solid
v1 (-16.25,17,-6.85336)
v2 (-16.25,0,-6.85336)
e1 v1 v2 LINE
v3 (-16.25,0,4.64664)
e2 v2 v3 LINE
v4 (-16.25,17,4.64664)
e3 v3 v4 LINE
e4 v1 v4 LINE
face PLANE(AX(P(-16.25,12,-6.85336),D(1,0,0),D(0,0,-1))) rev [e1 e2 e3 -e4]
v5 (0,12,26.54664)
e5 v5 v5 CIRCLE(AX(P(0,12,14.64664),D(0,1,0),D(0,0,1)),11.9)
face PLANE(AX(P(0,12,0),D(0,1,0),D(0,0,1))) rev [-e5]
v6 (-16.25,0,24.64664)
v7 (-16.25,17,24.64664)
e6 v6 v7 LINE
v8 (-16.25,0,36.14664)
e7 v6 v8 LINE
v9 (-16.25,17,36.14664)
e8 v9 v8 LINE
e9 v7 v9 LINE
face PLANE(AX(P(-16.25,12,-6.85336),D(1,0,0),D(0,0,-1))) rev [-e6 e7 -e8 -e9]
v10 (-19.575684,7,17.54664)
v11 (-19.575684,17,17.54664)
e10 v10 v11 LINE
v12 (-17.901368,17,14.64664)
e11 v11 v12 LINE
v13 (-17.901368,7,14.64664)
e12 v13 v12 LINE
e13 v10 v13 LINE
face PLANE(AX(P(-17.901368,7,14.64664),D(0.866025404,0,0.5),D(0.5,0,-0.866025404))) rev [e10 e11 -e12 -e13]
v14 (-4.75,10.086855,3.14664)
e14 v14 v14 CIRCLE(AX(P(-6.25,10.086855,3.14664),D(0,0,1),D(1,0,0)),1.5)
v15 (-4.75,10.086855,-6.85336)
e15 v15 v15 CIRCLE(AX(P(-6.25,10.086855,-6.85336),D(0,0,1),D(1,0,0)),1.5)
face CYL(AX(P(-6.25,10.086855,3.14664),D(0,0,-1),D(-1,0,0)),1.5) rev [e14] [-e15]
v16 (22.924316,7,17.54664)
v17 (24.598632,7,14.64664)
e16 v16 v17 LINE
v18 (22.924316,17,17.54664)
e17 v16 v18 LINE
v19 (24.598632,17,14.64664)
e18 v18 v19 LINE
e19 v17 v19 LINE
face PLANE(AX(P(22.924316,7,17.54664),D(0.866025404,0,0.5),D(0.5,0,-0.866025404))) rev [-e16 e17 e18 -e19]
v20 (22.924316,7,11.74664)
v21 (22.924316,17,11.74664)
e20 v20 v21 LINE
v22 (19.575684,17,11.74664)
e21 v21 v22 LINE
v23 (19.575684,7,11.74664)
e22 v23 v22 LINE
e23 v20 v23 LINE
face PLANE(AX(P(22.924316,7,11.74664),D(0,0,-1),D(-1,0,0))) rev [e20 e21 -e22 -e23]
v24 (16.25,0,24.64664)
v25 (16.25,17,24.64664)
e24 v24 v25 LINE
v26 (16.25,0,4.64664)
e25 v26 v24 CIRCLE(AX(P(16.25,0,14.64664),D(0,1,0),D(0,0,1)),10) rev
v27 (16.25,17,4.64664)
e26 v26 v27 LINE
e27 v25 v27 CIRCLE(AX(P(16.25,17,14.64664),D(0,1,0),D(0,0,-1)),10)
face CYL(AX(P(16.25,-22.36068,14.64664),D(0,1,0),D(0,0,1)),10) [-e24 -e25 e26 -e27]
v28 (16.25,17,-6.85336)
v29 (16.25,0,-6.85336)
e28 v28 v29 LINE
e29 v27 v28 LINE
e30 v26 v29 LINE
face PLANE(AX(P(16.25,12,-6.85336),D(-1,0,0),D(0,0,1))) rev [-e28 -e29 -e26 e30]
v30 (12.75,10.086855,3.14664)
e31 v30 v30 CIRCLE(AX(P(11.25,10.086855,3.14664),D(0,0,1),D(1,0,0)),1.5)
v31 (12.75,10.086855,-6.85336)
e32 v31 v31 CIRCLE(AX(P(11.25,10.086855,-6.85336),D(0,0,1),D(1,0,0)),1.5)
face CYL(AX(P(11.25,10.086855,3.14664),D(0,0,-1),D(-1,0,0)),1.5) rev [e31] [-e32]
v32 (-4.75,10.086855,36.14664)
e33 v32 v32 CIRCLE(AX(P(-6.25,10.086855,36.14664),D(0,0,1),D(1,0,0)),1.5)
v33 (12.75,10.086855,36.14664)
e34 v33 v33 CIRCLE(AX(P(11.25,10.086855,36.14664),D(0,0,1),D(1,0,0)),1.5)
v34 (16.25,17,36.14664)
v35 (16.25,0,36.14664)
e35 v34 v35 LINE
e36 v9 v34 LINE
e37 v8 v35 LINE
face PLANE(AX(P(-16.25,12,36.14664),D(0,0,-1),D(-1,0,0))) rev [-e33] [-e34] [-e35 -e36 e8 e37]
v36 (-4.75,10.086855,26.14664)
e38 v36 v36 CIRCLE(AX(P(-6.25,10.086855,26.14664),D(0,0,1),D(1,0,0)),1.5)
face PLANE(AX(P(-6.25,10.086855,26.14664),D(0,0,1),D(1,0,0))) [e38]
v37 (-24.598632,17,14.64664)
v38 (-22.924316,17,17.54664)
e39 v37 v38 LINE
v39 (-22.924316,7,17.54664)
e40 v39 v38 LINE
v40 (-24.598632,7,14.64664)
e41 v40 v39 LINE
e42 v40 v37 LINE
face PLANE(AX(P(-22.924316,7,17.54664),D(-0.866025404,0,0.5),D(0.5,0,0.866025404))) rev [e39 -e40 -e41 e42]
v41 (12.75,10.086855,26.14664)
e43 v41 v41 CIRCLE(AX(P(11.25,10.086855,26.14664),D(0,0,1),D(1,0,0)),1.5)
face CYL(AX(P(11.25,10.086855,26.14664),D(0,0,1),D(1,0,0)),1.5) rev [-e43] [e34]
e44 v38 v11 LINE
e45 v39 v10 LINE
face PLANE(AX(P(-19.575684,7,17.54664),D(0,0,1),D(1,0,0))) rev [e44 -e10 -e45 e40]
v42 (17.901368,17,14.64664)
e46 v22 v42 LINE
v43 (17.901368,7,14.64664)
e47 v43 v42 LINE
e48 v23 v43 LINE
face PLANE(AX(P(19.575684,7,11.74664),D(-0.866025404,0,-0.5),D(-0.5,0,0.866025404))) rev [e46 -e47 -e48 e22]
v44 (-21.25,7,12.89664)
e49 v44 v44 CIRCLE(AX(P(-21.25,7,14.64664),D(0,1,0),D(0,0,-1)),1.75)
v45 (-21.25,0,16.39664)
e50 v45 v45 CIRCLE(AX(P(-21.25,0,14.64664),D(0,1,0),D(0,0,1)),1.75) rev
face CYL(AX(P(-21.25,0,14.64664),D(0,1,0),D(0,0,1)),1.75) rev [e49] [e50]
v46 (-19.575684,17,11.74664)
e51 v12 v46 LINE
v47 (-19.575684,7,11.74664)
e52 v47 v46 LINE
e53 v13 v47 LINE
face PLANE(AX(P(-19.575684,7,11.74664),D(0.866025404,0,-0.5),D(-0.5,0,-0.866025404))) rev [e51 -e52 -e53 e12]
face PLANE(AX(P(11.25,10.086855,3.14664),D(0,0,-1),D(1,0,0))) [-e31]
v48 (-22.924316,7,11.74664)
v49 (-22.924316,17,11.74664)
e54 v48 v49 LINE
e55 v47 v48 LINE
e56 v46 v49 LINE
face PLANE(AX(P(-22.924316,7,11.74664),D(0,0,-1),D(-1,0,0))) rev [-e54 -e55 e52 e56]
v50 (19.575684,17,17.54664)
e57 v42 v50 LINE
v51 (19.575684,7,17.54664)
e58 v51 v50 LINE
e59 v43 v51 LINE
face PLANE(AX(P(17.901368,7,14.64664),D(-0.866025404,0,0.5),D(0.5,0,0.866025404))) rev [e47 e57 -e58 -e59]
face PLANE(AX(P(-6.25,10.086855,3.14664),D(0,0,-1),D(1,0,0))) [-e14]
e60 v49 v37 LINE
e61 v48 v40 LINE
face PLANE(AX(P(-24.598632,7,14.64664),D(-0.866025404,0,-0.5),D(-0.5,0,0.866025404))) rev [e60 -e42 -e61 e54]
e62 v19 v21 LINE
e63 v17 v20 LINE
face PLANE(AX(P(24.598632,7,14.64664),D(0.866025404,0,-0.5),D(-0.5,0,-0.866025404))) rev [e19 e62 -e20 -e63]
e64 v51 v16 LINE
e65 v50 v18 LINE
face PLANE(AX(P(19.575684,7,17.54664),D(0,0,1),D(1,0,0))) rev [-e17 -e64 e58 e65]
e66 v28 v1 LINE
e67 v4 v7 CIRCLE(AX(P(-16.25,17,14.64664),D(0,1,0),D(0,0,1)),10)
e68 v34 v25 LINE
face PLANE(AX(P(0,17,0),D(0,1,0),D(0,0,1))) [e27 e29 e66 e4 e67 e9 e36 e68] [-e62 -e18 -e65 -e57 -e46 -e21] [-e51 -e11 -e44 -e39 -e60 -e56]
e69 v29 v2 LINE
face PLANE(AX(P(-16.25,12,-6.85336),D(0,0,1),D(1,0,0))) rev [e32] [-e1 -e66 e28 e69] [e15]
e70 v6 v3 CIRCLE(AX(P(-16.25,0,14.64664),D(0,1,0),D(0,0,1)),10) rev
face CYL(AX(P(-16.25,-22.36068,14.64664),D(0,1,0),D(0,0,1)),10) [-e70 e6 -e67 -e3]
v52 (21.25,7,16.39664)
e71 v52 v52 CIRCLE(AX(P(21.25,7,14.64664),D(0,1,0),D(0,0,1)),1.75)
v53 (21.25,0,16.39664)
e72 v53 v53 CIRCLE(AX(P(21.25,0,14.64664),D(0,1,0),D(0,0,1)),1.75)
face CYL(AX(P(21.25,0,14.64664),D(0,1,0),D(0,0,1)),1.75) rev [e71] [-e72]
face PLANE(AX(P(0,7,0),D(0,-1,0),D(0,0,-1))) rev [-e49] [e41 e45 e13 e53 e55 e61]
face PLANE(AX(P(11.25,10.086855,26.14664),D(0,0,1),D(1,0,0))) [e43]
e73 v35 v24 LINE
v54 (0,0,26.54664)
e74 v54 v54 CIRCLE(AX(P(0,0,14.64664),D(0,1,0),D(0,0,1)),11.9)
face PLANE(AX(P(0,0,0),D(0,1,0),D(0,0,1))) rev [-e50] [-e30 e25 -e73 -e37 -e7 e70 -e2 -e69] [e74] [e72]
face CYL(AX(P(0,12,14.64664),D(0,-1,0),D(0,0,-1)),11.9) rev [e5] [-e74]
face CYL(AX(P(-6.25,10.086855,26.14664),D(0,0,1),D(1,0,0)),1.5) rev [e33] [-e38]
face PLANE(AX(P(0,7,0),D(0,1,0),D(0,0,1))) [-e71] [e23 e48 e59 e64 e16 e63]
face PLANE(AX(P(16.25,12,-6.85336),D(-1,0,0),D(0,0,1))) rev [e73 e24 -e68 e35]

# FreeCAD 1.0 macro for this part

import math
import FreeCAD as App
import Part
import Sketcher

V = App.Vector
Q = App.Units.Quantity


def add_polygon(sketch, points):
    """Adds a closed chain of lines whose ends are joined by coincident constraints."""
    first, n = sketch.GeometryCount, len(points)
    for a, b in zip(points, points[1:] + points[:1]):
        sketch.addGeometry(Part.LineSegment(App.Vector(*a, 0), App.Vector(*b, 0)), False)
    for i in range(n):
        sketch.addConstraint(Sketcher.Constraint("Coincident", first + i, 2, first + (i + 1) % n, 1))

doc = App.newDocument("Part")
params = doc.addObject("Spreadsheet::Sheet", "Params")
for row, (alias, value) in enumerate([
    ("sketch1_diameter", "23.8 mm"),
    ("sketch1_height", "43 mm"),
    ("sketch1_width", "32.5 mm"),
    ("pad1_length", "12 mm"),
    ("sketch2_height", "43 mm"),
    ("sketch2_width", "32.5 mm"),
    ("pad2_length", "5 mm"),
    ("sketch3_diameter", "3 mm"),
    ("pocket1_length", "10 mm"),
    ("sketch4_radius", "10 mm"),
    ("pad3_length", "17 mm"),
    ("sketch5_diameter", "3.5 mm"),
    ("sketch6_diameter", "3.5 mm"),
    ("pocket3_length", "10 mm"),
], start=1):
    params.set(f"A{row}", alias)
    params.set(f"B{row}", "=" + value)
    params.setAlias(f"B{row}", alias)

body = doc.addObject("PartDesign::Body", "Body")

# Sketch on XZ plane
sketch1 = body.newObject("Sketcher::SketchObject", "Sketch")
sketch1.AttachmentSupport = (doc.getObject("XZ_Plane"), [""])
sketch1.MapMode = "FlatFace"
add_polygon(sketch1, [(-16, -7), (-16, 36), (16, 36), (16, -7)])  # lines 0-3
sketch1.addGeometry(Part.Circle(V(0, 15, 0), V(0, 0, 1), 12), False)  # 4
sketch1.addConstraint(Sketcher.Constraint("Vertical", 0))
sketch1.addConstraint(Sketcher.Constraint("Horizontal", 1))
sketch1.addConstraint(Sketcher.Constraint("Vertical", 2))
sketch1.addConstraint(Sketcher.Constraint("Horizontal", 3))
sketch1.addConstraint(Sketcher.Constraint("PointOnObject", 4, 3, -2))
sketch1.addConstraint(Sketcher.Constraint("Diameter", 4, Q("23.8 mm")))
sketch1.addConstraint(Sketcher.Constraint("DistanceY", 0, 1, 0, 2, Q("43 mm")))
sketch1.addConstraint(Sketcher.Constraint("DistanceX", 1, 1, 1, 2, Q("32.5 mm")))
sketch1.addConstraint(Sketcher.Constraint("DistanceY", 4, 3, 0, 2, Q("21.5 mm")))
sketch1.addConstraint(Sketcher.Constraint("DistanceX", 0, 2, -1, 1, Q("16.25 mm")))
sketch1.addConstraint(Sketcher.Constraint("DistanceY", -1, 1, 4, 3, Q("14.64664 mm")))
sketch1.setExpression("Constraints[9]", "Params.sketch1_diameter")
sketch1.setExpression("Constraints[10]", "Params.sketch1_height")
sketch1.setExpression("Constraints[11]", "Params.sketch1_width")
pad1 = body.newObject("PartDesign::Pad", "Pad")
pad1.Profile = sketch1
pad1.setExpression("Length", "Params.pad1_length")
pad1.Reversed = True

# Sketch on XZ plane
sketch2 = body.newObject("Sketcher::SketchObject", "Sketch001")
sketch2.AttachmentSupport = (doc.getObject("XZ_Plane"), [""])
sketch2.MapMode = "FlatFace"
sketch2.AttachmentOffset = App.Placement(V(0, 0, -12), App.Rotation())
add_polygon(sketch2, [(-16, -7), (-16, 36), (16, 36), (16, -7)])  # lines 0-3
sketch2.addConstraint(Sketcher.Constraint("Vertical", 0))
sketch2.addConstraint(Sketcher.Constraint("Horizontal", 1))
sketch2.addConstraint(Sketcher.Constraint("Vertical", 2))
sketch2.addConstraint(Sketcher.Constraint("Horizontal", 3))
sketch2.addConstraint(Sketcher.Constraint("DistanceY", 0, 1, 0, 2, Q("43 mm")))
sketch2.addConstraint(Sketcher.Constraint("DistanceX", 1, 1, 1, 2, Q("32.5 mm")))
sketch2.addConstraint(Sketcher.Constraint("DistanceX", 0, 2, -1, 1, Q("16.25 mm")))
sketch2.addConstraint(Sketcher.Constraint("DistanceY", -1, 1, 0, 2, Q("36.14664 mm")))
sketch2.setExpression("Constraints[8]", "Params.sketch2_height")
sketch2.setExpression("Constraints[9]", "Params.sketch2_width")
pad2 = body.newObject("PartDesign::Pad", "Pad001")
pad2.Profile = sketch2
pad2.setExpression("Length", "Params.pad2_length")
pad2.Reversed = True

# Sketch on XY plane
sketch3 = body.newObject("Sketcher::SketchObject", "Sketch002")
sketch3.AttachmentSupport = (doc.getObject("XY_Plane"), [""])
sketch3.MapMode = "FlatFace"
sketch3.AttachmentOffset = App.Placement(V(0, 0, 36.14664), App.Rotation())
sketch3.addGeometry(Part.Circle(V(11.2, 10.1, 0), V(0, 0, 1), 1.5), False)
sketch3.addGeometry(Part.Circle(V(-6.2, 10.1, 0), V(0, 0, 1), 1.5), False)
sketch3.addConstraint(Sketcher.Constraint("Equal", 0, 1))
sketch3.addConstraint(Sketcher.Constraint("Horizontal", 0, 3, 1, 3))
sketch3.addConstraint(Sketcher.Constraint("Diameter", 0, Q("3 mm")))
sketch3.addConstraint(Sketcher.Constraint("DistanceX", 1, 3, 0, 3, Q("17.5 mm")))
sketch3.addConstraint(Sketcher.Constraint("DistanceX", -1, 1, 0, 3, Q("11.25 mm")))
sketch3.addConstraint(Sketcher.Constraint("DistanceY", -1, 1, 0, 3, Q("10.086855 mm")))
sketch3.setExpression("Constraints[2]", "Params.sketch3_diameter")
pocket1 = body.newObject("PartDesign::Pocket", "Pocket")
pocket1.Profile = sketch3
pocket1.setExpression("Length", "Params.pocket1_length")
doc.recompute()

datumplane = body.newObject("PartDesign::Plane", "DatumPlane")
datumplane.AttachmentSupport = (doc.getObject("XY_Plane"), [""])
datumplane.MapMode = "FlatFace"
datumplane.AttachmentOffset = App.Placement(V(0, 0, 14.64664), App.Rotation())
mirrored = body.newObject("PartDesign::Mirrored", "Mirrored")
mirrored.Originals = [pocket1]
mirrored.MirrorPlane = (datumplane, [""])
body.Tip = mirrored

# Sketch on XZ plane
sketch4 = body.newObject("Sketcher::SketchObject", "Sketch003")
sketch4.AttachmentSupport = (doc.getObject("XZ_Plane"), [""])
sketch4.MapMode = "FlatFace"
sketch4.AttachmentOffset = App.Placement(V(0, 0, -17), App.Rotation())
sketch4.addGeometry(Part.LineSegment(V(16, 5, 0), V(16, 25, 0)), False)
sketch4.addGeometry(Part.ArcOfCircle(Part.Circle(V(16, 15, 0), V(0, 0, 1), 10), math.radians(-90), math.radians(90)), False)
sketch4.addGeometry(Part.LineSegment(V(-16, 25, 0), V(-16, 5, 0)), False)
sketch4.addGeometry(Part.ArcOfCircle(Part.Circle(V(-16, 15, 0), V(0, 0, 1), 10), math.radians(90), math.radians(270)), False)
sketch4.addConstraint(Sketcher.Constraint("Coincident", 0, 1, 1, 1))
sketch4.addConstraint(Sketcher.Constraint("Coincident", 1, 2, 0, 2))
sketch4.addConstraint(Sketcher.Constraint("Coincident", 2, 1, 3, 1))
sketch4.addConstraint(Sketcher.Constraint("Coincident", 3, 2, 2, 2))
sketch4.addConstraint(Sketcher.Constraint("Vertical", 0))
sketch4.addConstraint(Sketcher.Constraint("Vertical", 2))
sketch4.addConstraint(Sketcher.Constraint("Equal", 1, 3))
sketch4.addConstraint(Sketcher.Constraint("Symmetric", 1, 3, 3, 3, -2))
sketch4.addConstraint(Sketcher.Constraint("Vertical", 1, 3, 0, 1))
sketch4.addConstraint(Sketcher.Constraint("Vertical", 3, 3, 2, 1))
sketch4.addConstraint(Sketcher.Constraint("Radius", 1, Q("10 mm")))
sketch4.addConstraint(Sketcher.Constraint("DistanceX", 3, 3, 1, 3, Q("32.5 mm")))
sketch4.addConstraint(Sketcher.Constraint("DistanceY", -1, 1, 1, 3, Q("14.64664 mm")))
sketch4.setExpression("Constraints[10]", "Params.sketch4_radius")
pad3 = body.newObject("PartDesign::Pad", "Pad002")
pad3.Profile = sketch4
pad3.setExpression("Length", "Params.pad3_length")

# Sketch on XZ plane
sketch5 = body.newObject("Sketcher::SketchObject", "Sketch004")
sketch5.AttachmentSupport = (doc.getObject("XZ_Plane"), [""])
sketch5.MapMode = "FlatFace"
sketch5.AttachmentOffset = App.Placement(V(0, 0, -17), App.Rotation())
sketch5.addGeometry(Part.Circle(V(-21.2, 14.6, 0), V(0, 0, 1), 1.8), False)
sketch5.addGeometry(Part.Circle(V(21.2, 14.6, 0), V(0, 0, 1), 1.8), False)
sketch5.addConstraint(Sketcher.Constraint("Equal", 0, 1))
sketch5.addConstraint(Sketcher.Constraint("Symmetric", 0, 3, 1, 3, -2))
sketch5.addConstraint(Sketcher.Constraint("Diameter", 0, Q("3.5 mm")))
sketch5.addConstraint(Sketcher.Constraint("DistanceX", 0, 3, 1, 3, Q("42.5 mm")))
sketch5.addConstraint(Sketcher.Constraint("DistanceY", -1, 1, 0, 3, Q("14.64664 mm")))
sketch5.setExpression("Constraints[2]", "Params.sketch5_diameter")
pocket2 = body.newObject("PartDesign::Pocket", "Pocket001")
pocket2.Profile = sketch5
pocket2.Type = "ThroughAll"
pocket2.Reversed = True

# Sketch on XZ plane
sketch6 = body.newObject("Sketcher::SketchObject", "Sketch005")
sketch6.AttachmentSupport = (doc.getObject("XZ_Plane"), [""])
sketch6.MapMode = "FlatFace"
sketch6.AttachmentOffset = App.Placement(V(0, 0, -17), App.Rotation())
add_polygon(sketch6, [(22.9, 17.5), (24.6, 14.6), (22.9, 11.7), (19.6, 11.7), (17.9, 14.6), (19.6, 17.5)])  # lines 0-5
sketch6.addGeometry(Part.Circle(V(21.2, 14.6, 0), V(0, 0, 1), 1.8), False)  # 6
add_polygon(sketch6, [(-22.9, 17.5), (-19.6, 17.5), (-17.9, 14.6), (-19.6, 11.7), (-22.9, 11.7), (-24.6, 14.6)])  # lines 7-12
sketch6.addGeometry(Part.Circle(V(-21.2, 14.6, 0), V(0, 0, 1), 1.8), False)  # 13
sketch6.addConstraint(Sketcher.Constraint("Horizontal", 2))
sketch6.addConstraint(Sketcher.Constraint("Horizontal", 5))
sketch6.addConstraint(Sketcher.Constraint("Horizontal", 7))
sketch6.addConstraint(Sketcher.Constraint("Horizontal", 10))
sketch6.addConstraint(Sketcher.Constraint("Equal", 6, 13))
sketch6.addConstraint(Sketcher.Constraint("Symmetric", 6, 3, 13, 3, -2))
sketch6.addConstraint(Sketcher.Constraint("Symmetric", 4, 2, 7, 2, -2))
sketch6.addConstraint(Sketcher.Constraint("Symmetric", 3, 2, 8, 2, -2))
sketch6.addConstraint(Sketcher.Constraint("Symmetric", 2, 2, 9, 2, -2))
sketch6.addConstraint(Sketcher.Constraint("Symmetric", 0, 2, 11, 2, -2))
sketch6.addConstraint(Sketcher.Constraint("Parallel", 0, 3))
sketch6.addConstraint(Sketcher.Constraint("Parallel", 1, 4))
sketch6.addConstraint(Sketcher.Constraint("Parallel", 3, 8))
sketch6.addConstraint(Sketcher.Constraint("Parallel", 8, 11))
sketch6.addConstraint(Sketcher.Constraint("Parallel", 9, 12))
sketch6.addConstraint(Sketcher.Constraint("Horizontal", 13, 3, 0, 2))
sketch6.addConstraint(Sketcher.Constraint("Horizontal", 0, 2, 3, 2))
sketch6.addConstraint(Sketcher.Constraint("Vertical", 2, 2, 4, 2))
sketch6.addConstraint(Sketcher.Constraint("Diameter", 6, Q("3.5 mm")))
sketch6.addConstraint(Sketcher.Constraint("Angle", 0, Q("-60 deg")))
sketch6.addConstraint(Sketcher.Constraint("DistanceX", 13, 3, 6, 3, Q("42.5 mm")))
sketch6.addConstraint(Sketcher.Constraint("DistanceY", 1, 2, 0, 2, Q("2.9 mm")))
sketch6.addConstraint(Sketcher.Constraint("DistanceX", 2, 2, 2, 1, Q("3.348632 mm")))
sketch6.addConstraint(Sketcher.Constraint("DistanceY", -1, 1, 6, 3, Q("14.64664 mm")))
sketch6.addConstraint(Sketcher.Constraint("DistanceX", -1, 1, 0, 2, Q("24.598632 mm")))
sketch6.setExpression("Constraints[30]", "Params.sketch6_diameter")
pocket3 = body.newObject("PartDesign::Pocket", "Pocket002")
pocket3.Profile = sketch6
pocket3.setExpression("Length", "Params.pocket3_length")
pocket3.Reversed = True

doc.recompute()
